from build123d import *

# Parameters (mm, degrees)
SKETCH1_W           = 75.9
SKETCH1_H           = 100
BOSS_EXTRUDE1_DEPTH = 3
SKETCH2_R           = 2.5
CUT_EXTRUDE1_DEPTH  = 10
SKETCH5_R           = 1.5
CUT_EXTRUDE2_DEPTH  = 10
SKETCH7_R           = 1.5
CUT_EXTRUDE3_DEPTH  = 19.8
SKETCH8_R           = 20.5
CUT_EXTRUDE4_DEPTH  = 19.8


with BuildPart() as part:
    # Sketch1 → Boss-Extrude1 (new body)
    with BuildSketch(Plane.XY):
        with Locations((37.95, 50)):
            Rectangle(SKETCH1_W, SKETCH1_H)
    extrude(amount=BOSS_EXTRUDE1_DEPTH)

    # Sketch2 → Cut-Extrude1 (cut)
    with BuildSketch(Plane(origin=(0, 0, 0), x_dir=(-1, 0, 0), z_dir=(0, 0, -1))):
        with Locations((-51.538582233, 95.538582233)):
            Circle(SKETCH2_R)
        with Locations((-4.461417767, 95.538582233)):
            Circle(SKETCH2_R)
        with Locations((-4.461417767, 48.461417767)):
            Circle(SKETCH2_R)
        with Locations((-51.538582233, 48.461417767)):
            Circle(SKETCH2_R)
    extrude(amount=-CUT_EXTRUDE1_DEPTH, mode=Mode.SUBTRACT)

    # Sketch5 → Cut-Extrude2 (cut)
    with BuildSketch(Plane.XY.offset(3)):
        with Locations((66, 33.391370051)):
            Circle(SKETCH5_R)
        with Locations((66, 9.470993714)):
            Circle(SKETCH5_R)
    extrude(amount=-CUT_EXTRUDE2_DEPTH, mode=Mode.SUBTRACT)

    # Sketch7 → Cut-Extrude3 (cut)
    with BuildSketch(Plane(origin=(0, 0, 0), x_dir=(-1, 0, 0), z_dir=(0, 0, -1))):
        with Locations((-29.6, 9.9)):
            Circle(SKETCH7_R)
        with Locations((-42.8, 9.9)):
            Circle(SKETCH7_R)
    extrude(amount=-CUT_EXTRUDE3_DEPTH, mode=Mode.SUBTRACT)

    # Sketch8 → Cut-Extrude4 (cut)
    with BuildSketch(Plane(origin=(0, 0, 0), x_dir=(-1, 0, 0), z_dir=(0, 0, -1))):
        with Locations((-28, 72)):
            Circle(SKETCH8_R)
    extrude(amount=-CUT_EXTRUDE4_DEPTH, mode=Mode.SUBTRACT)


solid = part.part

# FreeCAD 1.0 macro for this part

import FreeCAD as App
import Part
import Sketcher
from FreeCAD import Vector

doc = App.newDocument("Part")
body = doc.addObject("PartDesign::Body", "Body")

# Sketch on XY plane
sketch1 = doc.addObject("Sketcher::SketchObject", "Sketch")
body.addObject(sketch1)
sketch1.AttachmentSupport = (doc.XY_Plane, [""])
sketch1.MapMode = "FlatFace"
sketch1.addGeometry(Part.LineSegment(Vector(0, 100, 0), Vector(0, 0, 0)), False)
sketch1.addGeometry(Part.LineSegment(Vector(0, 0, 0), Vector(76, 0, 0)), False)
sketch1.addGeometry(Part.LineSegment(Vector(76, 0, 0), Vector(76, 100, 0)), False)
sketch1.addGeometry(Part.LineSegment(Vector(76, 100, 0), Vector(0, 100, 0)), False)
sketch1.addConstraint(Sketcher.Constraint("Coincident", 0, 2, 1, 1))
sketch1.addConstraint(Sketcher.Constraint("Coincident", 1, 2, 2, 1))
sketch1.addConstraint(Sketcher.Constraint("Coincident", 2, 2, 3, 1))
sketch1.addConstraint(Sketcher.Constraint("Coincident", 3, 2, 0, 1))
sketch1.addConstraint(Sketcher.Constraint("Vertical", 0))
sketch1.addConstraint(Sketcher.Constraint("Horizontal", 1))
sketch1.addConstraint(Sketcher.Constraint("Vertical", 2))
sketch1.addConstraint(Sketcher.Constraint("Horizontal", 3))
sketch1.addConstraint(Sketcher.Constraint("Coincident", 0, 2, -1, 1))
sketch1.addConstraint(Sketcher.Constraint("DistanceY", 0, 2, 0, 1, 100.0))
sketch1.addConstraint(Sketcher.Constraint("DistanceX", 1, 1, 1, 2, 75.9))
pad1 = doc.addObject("PartDesign::Pad", "Pad")
body.addObject(pad1)
pad1.Profile = sketch1
pad1.Length = 3

# Sketch on XY plane
sketch2 = doc.addObject("Sketcher::SketchObject", "Sketch001")
body.addObject(sketch2)
sketch2.AttachmentSupport = (doc.XY_Plane, [""])
sketch2.MapMode = "FlatFace"
sketch2.addGeometry(Part.Circle(Vector(51.5, 95.5, 0), Vector(0, 0, 1), 2.5), False)
sketch2.addGeometry(Part.Circle(Vector(4.5, 95.5, 0), Vector(0, 0, 1), 2.5), False)
sketch2.addGeometry(Part.Circle(Vector(4.5, 48.5, 0), Vector(0, 0, 1), 2.5), False)
sketch2.addGeometry(Part.Circle(Vector(51.5, 48.5, 0), Vector(0, 0, 1), 2.5), False)
sketch2.addConstraint(Sketcher.Constraint("Equal", 0, 1))
sketch2.addConstraint(Sketcher.Constraint("Equal", 1, 2))
sketch2.addConstraint(Sketcher.Constraint("Equal", 2, 3))
sketch2.addConstraint(Sketcher.Constraint("Horizontal", 0, 3, 1, 3))
sketch2.addConstraint(Sketcher.Constraint("Horizontal", 2, 3, 3, 3))
sketch2.addConstraint(Sketcher.Constraint("Vertical", 1, 3, 2, 3))
sketch2.addConstraint(Sketcher.Constraint("Vertical", 0, 3, 3, 3))
sketch2.addConstraint(Sketcher.Constraint("Diameter", 0, 5.0))
sketch2.addConstraint(Sketcher.Constraint("DistanceX", -1, 1, 0, 3, 51.538582))
sketch2.addConstraint(Sketcher.Constraint("DistanceY", -1, 1, 0, 3, 95.538582))
sketch2.addConstraint(Sketcher.Constraint("DistanceX", -1, 1, 1, 3, 4.461418))
sketch2.addConstraint(Sketcher.Constraint("DistanceY", -1, 1, 2, 3, 48.461418))
pocket1 = doc.addObject("PartDesign::Pocket", "Pocket")
body.addObject(pocket1)
pocket1.Profile = sketch2
pocket1.Length = 10
pocket1.Reversed = True

# Sketch on XY plane
sketch3 = doc.addObject("Sketcher::SketchObject", "Sketch002")
body.addObject(sketch3)
sketch3.AttachmentSupport = (doc.XY_Plane, [""])
sketch3.MapMode = "FlatFace"
sketch3.AttachmentOffset = App.Placement(Vector(0, 0, 3), App.Rotation())
sketch3.addGeometry(Part.Circle(Vector(66, 33.4, 0), Vector(0, 0, 1), 1.5), False)
sketch3.addGeometry(Part.Circle(Vector(66, 9.5, 0), Vector(0, 0, 1), 1.5), False)
sketch3.addConstraint(Sketcher.Constraint("Equal", 0, 1))
sketch3.addConstraint(Sketcher.Constraint("Vertical", 0, 3, 1, 3))
sketch3.addConstraint(Sketcher.Constraint("Diameter", 0, 3.0))
sketch3.addConstraint(Sketcher.Constraint("DistanceX", -1, 1, 0, 3, 66.0))
sketch3.addConstraint(Sketcher.Constraint("DistanceY", -1, 1, 0, 3, 33.39137))
sketch3.addConstraint(Sketcher.Constraint("DistanceY", -1, 1, 1, 3, 9.470994))
pocket2 = doc.addObject("PartDesign::Pocket", "Pocket001")
body.addObject(pocket2)
pocket2.Profile = sketch3
pocket2.Length = 10

# Sketch on XY plane
sketch4 = doc.addObject("Sketcher::SketchObject", "Sketch003")
body.addObject(sketch4)
sketch4.AttachmentSupport = (doc.XY_Plane, [""])
sketch4.MapMode = "FlatFace"
sketch4.addGeometry(Part.Circle(Vector(29.6, 9.9, 0), Vector(0, 0, 1), 1.5), False)
sketch4.addGeometry(Part.Circle(Vector(42.8, 9.9, 0), Vector(0, 0, 1), 1.5), False)
sketch4.addConstraint(Sketcher.Constraint("Equal", 0, 1))
sketch4.addConstraint(Sketcher.Constraint("Horizontal", 0, 3, 1, 3))
sketch4.addConstraint(Sketcher.Constraint("Diameter", 0, 3.0))
sketch4.addConstraint(Sketcher.Constraint("DistanceX", -1, 1, 0, 3, 29.6))
sketch4.addConstraint(Sketcher.Constraint("DistanceY", -1, 1, 0, 3, 9.9))
sketch4.addConstraint(Sketcher.Constraint("DistanceX", -1, 1, 1, 3, 42.8))
pocket3 = doc.addObject("PartDesign::Pocket", "Pocket002")
body.addObject(pocket3)
pocket3.Profile = sketch4
pocket3.Length = 19.8
pocket3.Reversed = True

# Sketch on XY plane
sketch5 = doc.addObject("Sketcher::SketchObject", "Sketch004")
body.addObject(sketch5)
sketch5.AttachmentSupport = (doc.XY_Plane, [""])
sketch5.MapMode = "FlatFace"
sketch5.addGeometry(Part.Circle(Vector(28, 72, 0), Vector(0, 0, 1), 20), False)
sketch5.addConstraint(Sketcher.Constraint("Diameter", 0, 41.0))
sketch5.addConstraint(Sketcher.Constraint("DistanceX", -1, 1, 0, 3, 28.0))
sketch5.addConstraint(Sketcher.Constraint("DistanceY", -1, 1, 0, 3, 72.0))
pocket4 = doc.addObject("PartDesign::Pocket", "Pocket003")
body.addObject(pocket4)
pocket4.Profile = sketch5
pocket4.Length = 19.8
pocket4.Reversed = True

doc.recompute()
